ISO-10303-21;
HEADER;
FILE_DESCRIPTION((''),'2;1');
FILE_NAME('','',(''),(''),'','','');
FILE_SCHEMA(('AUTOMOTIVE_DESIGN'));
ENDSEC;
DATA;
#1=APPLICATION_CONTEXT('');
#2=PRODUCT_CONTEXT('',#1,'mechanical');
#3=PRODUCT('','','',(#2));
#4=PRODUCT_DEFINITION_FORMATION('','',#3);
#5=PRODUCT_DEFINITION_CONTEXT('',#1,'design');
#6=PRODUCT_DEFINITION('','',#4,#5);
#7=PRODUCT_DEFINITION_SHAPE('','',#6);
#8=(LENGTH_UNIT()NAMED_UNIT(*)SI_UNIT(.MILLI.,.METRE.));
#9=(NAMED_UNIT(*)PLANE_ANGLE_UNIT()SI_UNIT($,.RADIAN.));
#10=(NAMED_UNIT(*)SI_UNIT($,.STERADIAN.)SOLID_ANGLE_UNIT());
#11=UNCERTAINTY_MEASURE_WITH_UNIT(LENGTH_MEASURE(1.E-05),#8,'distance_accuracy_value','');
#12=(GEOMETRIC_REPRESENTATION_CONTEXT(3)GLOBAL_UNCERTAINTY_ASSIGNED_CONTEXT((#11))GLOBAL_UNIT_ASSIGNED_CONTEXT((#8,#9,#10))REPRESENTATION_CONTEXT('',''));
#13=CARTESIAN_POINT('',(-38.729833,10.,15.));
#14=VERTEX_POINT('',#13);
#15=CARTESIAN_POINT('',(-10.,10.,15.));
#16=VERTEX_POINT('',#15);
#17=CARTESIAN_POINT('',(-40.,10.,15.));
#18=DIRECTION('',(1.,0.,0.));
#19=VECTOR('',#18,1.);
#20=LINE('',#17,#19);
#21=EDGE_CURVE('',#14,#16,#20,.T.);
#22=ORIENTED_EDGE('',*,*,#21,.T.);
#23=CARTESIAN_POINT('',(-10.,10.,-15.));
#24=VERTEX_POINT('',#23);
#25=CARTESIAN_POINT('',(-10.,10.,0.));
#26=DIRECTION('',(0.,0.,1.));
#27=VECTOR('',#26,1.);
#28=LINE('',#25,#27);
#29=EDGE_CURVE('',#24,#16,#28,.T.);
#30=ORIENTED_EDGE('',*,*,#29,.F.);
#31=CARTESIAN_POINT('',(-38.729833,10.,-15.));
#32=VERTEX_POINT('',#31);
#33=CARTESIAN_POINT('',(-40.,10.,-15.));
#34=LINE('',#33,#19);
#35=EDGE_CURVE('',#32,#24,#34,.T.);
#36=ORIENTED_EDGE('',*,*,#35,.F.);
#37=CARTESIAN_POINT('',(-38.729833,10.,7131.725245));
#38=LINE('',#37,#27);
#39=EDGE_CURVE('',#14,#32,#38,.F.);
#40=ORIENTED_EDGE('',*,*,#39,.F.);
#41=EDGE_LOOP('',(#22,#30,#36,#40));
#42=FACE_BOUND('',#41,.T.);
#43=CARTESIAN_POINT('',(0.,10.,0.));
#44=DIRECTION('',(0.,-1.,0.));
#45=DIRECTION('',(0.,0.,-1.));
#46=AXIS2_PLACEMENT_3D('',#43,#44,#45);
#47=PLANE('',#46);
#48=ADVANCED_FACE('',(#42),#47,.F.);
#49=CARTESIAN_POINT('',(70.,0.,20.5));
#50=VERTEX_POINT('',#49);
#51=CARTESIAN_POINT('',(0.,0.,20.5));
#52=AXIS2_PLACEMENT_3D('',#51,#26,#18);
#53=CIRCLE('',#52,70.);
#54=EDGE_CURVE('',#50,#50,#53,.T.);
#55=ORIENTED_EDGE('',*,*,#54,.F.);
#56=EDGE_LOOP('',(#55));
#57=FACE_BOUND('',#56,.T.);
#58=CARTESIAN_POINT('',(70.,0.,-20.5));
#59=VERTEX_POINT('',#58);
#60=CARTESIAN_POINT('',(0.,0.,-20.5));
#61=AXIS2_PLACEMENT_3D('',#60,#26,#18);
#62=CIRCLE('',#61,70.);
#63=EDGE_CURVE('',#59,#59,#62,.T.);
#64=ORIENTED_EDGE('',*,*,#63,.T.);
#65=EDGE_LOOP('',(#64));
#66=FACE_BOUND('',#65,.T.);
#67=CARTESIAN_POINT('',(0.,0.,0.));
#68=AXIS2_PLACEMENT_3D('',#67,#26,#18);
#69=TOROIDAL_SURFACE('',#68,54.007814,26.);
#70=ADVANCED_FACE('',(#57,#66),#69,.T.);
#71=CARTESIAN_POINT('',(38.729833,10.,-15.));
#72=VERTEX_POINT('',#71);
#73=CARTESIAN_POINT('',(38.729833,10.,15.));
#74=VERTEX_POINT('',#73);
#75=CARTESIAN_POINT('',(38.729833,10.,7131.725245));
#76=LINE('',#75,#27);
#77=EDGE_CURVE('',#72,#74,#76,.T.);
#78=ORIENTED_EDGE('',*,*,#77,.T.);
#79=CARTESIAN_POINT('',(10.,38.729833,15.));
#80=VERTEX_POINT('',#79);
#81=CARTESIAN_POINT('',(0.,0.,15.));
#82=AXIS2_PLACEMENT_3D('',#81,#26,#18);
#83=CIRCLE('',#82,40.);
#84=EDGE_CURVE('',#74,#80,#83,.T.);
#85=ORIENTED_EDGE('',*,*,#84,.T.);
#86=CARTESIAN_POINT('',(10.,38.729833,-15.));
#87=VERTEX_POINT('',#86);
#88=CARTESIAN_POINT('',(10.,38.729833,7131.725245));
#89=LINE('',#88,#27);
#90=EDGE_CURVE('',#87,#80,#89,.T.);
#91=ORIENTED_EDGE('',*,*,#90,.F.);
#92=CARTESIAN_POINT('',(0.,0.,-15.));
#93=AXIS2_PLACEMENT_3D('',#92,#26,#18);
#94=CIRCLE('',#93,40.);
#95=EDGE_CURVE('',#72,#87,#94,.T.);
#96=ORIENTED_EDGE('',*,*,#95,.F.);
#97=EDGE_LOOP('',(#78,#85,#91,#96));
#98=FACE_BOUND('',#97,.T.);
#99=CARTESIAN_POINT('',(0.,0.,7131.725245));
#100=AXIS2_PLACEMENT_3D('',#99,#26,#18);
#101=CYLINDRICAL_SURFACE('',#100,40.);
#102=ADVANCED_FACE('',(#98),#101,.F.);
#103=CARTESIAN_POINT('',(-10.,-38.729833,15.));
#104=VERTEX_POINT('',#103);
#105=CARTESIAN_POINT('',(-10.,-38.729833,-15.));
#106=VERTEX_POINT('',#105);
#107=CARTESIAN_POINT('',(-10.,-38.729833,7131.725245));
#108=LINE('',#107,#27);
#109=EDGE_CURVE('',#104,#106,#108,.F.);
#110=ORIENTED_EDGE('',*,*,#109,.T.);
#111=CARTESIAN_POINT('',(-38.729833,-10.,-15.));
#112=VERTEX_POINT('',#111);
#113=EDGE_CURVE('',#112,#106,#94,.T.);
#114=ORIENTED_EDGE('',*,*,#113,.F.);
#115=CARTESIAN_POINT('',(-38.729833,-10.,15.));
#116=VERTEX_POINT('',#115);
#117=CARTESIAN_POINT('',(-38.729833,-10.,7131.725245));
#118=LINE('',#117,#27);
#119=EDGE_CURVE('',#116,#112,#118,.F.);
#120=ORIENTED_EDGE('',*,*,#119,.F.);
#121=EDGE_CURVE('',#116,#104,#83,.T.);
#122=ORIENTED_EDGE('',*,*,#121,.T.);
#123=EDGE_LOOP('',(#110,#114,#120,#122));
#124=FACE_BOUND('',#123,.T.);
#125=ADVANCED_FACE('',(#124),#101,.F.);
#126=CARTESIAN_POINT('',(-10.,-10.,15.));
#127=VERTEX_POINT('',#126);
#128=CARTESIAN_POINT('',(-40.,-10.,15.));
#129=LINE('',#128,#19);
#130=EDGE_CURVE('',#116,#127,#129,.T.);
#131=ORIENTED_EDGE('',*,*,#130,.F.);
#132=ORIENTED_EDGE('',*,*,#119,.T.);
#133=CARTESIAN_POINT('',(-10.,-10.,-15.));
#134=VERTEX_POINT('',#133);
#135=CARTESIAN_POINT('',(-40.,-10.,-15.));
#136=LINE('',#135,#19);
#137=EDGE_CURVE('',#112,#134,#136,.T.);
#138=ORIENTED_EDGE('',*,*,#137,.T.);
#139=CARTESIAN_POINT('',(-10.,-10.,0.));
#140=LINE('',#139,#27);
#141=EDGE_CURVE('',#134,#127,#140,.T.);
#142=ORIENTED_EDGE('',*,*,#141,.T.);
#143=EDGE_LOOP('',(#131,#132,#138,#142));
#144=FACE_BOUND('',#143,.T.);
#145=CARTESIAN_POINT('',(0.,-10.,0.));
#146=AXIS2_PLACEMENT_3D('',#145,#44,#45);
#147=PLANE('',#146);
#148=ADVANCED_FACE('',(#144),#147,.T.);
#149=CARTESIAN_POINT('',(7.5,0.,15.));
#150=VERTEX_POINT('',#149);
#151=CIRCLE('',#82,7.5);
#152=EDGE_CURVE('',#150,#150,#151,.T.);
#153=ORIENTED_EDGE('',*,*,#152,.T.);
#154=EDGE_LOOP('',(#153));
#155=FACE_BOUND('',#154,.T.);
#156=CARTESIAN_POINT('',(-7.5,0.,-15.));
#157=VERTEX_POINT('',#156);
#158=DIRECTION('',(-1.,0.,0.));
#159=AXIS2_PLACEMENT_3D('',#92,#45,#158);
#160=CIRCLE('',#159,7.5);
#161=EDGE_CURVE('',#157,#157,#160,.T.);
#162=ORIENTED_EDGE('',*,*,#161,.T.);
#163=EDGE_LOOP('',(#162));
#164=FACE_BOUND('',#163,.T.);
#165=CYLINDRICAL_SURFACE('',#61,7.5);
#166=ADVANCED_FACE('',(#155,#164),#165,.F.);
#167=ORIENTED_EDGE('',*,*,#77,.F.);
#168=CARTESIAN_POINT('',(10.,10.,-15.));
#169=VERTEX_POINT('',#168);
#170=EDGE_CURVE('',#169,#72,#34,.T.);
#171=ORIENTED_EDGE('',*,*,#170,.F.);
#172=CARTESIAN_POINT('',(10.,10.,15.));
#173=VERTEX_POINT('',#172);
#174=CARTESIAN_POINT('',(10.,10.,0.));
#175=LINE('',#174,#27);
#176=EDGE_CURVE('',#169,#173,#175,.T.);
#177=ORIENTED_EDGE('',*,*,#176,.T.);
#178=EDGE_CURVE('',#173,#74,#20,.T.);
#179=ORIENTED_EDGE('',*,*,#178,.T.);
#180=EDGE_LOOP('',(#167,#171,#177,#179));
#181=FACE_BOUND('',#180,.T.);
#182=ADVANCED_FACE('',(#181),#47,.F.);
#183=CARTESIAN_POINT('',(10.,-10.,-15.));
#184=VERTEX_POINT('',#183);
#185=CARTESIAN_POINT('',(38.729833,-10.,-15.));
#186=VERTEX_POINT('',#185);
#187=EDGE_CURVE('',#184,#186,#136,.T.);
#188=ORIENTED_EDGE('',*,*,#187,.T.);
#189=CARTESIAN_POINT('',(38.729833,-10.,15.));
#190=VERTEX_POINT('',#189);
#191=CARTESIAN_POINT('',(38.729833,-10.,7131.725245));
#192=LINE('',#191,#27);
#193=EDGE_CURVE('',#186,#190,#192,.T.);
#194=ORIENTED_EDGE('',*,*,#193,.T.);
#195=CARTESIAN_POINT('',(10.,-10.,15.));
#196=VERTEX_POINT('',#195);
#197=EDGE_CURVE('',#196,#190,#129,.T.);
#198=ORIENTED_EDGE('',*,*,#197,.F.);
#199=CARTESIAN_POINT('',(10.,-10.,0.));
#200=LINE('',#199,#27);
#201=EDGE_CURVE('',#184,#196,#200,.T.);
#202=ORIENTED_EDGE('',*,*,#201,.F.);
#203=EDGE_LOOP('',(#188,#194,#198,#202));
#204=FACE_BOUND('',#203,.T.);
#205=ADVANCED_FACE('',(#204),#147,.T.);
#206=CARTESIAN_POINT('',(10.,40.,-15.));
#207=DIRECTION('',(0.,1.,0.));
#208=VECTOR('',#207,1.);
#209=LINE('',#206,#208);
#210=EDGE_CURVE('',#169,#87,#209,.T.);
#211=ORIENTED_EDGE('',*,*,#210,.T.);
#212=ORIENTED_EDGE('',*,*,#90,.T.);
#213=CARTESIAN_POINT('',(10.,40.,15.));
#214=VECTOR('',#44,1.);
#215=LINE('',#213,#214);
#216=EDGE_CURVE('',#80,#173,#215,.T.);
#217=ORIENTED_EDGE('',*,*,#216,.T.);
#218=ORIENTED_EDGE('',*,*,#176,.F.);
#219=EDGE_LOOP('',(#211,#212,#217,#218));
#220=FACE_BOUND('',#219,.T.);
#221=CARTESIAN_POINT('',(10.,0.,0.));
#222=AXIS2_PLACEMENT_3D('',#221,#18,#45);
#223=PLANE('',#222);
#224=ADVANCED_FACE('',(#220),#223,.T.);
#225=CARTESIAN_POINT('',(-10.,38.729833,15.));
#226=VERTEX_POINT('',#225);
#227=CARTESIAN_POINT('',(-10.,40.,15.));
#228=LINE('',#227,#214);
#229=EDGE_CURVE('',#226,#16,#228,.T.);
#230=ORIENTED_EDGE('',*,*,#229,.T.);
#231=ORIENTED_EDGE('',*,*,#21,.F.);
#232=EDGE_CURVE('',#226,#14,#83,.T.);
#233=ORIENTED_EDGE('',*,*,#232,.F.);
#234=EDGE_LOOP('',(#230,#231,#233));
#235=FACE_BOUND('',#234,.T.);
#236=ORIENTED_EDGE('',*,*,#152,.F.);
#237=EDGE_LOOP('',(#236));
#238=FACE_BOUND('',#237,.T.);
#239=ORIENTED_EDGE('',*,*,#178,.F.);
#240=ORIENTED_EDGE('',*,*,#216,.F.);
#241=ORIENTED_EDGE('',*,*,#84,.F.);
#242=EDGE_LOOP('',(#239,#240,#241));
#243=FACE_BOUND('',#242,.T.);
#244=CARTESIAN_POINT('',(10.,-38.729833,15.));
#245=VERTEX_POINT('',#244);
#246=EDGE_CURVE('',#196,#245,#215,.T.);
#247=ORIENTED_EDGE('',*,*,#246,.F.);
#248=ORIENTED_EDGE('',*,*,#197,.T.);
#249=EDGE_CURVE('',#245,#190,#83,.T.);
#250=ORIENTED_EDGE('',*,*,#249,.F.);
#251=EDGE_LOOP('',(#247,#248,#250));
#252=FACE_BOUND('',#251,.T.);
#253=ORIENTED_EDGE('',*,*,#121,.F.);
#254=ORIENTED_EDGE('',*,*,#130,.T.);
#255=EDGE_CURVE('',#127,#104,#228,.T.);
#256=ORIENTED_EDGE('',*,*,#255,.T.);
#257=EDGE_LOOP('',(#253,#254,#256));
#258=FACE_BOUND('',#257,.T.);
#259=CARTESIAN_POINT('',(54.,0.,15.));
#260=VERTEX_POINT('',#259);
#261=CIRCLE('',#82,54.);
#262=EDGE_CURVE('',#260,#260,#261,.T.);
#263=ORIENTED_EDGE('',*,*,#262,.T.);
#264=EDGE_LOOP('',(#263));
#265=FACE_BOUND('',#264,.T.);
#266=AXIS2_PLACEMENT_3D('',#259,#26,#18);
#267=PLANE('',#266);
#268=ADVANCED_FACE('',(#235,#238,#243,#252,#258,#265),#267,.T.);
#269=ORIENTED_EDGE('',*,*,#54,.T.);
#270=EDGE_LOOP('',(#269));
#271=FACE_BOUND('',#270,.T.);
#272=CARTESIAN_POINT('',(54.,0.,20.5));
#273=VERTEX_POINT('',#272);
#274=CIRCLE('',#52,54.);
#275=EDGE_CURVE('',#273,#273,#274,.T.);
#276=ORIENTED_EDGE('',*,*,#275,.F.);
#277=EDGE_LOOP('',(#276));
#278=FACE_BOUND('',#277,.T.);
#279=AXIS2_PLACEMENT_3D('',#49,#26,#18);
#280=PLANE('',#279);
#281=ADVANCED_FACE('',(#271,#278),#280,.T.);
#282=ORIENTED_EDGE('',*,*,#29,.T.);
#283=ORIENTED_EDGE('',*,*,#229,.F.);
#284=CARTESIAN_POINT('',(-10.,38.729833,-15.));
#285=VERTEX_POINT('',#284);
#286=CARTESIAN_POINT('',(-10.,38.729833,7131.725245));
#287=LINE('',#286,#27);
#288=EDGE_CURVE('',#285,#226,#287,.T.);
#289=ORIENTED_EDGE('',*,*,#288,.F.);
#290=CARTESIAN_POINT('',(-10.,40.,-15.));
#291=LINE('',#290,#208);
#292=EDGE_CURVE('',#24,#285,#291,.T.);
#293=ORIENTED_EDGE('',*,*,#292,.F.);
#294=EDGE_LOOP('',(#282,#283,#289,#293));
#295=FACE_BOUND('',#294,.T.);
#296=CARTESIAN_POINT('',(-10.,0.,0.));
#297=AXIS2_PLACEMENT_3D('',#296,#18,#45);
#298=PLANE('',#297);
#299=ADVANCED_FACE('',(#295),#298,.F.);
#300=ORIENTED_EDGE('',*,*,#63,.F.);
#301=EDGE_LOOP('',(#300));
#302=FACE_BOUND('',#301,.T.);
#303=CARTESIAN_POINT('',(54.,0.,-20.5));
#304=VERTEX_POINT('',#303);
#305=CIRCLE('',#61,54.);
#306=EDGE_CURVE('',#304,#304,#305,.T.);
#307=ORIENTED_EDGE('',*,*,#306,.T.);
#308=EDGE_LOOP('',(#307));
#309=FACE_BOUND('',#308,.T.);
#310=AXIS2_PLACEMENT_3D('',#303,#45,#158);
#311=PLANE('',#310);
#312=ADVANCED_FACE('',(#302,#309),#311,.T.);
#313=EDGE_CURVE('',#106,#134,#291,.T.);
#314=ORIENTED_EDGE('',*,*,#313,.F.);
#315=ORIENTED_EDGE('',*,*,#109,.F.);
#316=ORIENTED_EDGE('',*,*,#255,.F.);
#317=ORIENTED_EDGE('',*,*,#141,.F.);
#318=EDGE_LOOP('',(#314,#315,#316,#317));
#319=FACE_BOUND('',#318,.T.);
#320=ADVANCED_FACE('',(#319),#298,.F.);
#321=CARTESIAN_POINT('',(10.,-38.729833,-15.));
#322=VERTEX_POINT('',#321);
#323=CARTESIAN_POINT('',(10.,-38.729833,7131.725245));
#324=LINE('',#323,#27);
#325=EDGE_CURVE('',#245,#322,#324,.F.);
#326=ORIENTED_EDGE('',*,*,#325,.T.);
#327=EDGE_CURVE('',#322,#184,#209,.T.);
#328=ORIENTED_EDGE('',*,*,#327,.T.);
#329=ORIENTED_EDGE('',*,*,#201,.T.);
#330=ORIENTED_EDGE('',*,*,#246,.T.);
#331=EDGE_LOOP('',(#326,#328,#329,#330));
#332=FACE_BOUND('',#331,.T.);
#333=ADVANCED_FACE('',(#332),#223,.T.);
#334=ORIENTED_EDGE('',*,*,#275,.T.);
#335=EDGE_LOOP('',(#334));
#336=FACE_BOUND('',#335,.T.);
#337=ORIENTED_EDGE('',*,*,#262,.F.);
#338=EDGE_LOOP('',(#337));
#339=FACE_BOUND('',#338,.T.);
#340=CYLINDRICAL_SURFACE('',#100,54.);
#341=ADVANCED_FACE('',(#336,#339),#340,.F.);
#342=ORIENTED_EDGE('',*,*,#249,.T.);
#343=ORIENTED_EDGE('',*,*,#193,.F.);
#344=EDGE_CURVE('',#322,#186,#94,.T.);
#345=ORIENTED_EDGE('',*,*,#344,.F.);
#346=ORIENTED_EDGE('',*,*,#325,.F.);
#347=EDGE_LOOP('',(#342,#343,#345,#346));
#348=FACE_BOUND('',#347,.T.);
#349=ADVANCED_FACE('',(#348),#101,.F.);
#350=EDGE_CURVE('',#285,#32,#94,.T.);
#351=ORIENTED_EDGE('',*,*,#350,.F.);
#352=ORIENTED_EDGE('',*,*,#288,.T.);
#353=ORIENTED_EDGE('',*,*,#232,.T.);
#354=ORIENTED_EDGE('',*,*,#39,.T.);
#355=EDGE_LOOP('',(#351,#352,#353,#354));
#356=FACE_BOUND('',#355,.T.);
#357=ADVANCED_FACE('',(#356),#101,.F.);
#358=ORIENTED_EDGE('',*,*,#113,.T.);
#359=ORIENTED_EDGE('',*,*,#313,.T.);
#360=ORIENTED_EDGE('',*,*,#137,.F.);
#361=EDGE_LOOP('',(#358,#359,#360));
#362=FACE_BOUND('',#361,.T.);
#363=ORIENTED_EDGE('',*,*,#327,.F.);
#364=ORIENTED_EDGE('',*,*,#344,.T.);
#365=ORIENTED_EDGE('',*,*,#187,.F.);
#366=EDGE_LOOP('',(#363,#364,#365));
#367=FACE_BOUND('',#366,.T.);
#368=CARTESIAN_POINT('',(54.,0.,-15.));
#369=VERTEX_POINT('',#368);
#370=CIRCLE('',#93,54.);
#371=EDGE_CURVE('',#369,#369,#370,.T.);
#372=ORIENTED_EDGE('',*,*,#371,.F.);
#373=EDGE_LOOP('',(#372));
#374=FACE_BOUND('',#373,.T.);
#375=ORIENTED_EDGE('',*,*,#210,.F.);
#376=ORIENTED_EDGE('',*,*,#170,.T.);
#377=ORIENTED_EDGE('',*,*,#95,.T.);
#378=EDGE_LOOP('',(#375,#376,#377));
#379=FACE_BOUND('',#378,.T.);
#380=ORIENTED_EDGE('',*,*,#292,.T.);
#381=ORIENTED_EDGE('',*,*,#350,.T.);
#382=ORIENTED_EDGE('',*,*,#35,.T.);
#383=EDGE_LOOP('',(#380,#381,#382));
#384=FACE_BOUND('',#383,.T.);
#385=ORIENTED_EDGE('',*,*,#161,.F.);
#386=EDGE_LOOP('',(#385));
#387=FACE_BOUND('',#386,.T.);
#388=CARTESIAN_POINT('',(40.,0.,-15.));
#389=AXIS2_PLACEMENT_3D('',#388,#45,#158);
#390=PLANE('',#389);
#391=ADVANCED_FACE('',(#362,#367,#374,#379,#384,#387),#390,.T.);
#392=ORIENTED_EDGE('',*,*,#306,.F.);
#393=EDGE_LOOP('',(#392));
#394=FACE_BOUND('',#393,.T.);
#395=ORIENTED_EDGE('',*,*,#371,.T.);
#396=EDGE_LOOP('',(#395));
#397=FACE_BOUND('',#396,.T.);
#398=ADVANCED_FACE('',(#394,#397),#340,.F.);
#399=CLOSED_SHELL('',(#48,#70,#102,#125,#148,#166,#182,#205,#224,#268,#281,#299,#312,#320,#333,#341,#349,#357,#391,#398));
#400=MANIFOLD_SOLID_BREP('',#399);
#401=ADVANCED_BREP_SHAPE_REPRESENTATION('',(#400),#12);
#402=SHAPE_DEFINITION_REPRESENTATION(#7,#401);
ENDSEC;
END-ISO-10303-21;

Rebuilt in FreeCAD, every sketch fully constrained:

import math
import FreeCAD as App
import Part
import Sketcher

doc = App.newDocument("Part")
body = doc.addObject("PartDesign::Body", "Body")

sketch1 = body.newObject("Sketcher::SketchObject", "Sketch")
sketch1.AttachmentSupport = (doc.getObject("XZ_Plane"), [""])
sketch1.MapMode = "FlatFace"
sketch1.addGeometry([
    Part.LineSegment(App.Vector(40, -15, 0), App.Vector(40, 15, 0)),
    Part.LineSegment(App.Vector(40, 15, 0), App.Vector(54, 15, 0)),
    Part.LineSegment(App.Vector(54, 15, 0), App.Vector(54, 20.5, 0)),
    Part.LineSegment(App.Vector(54, 20.5, 0), App.Vector(70, 20.5, 0)),
    Part.ArcOfCircle(Part.Circle(App.Vector(54.007814, 0, 0), App.Vector(0, 0, 1), 26), math.radians(-52.041971), math.radians(52.041971)),
    Part.LineSegment(App.Vector(70, -20.5, 0), App.Vector(54, -20.5, 0)),
    Part.LineSegment(App.Vector(54, -20.5, 0), App.Vector(54, -15, 0)),
    Part.LineSegment(App.Vector(54, -15, 0), App.Vector(40, -15, 0)),
], False)
sketch1.addConstraint([
    Sketcher.Constraint("Coincident", 0, 2, 1, 1),
    Sketcher.Constraint("Coincident", 1, 2, 2, 1),
    Sketcher.Constraint("Coincident", 2, 2, 3, 1),
    Sketcher.Constraint("Coincident", 3, 2, 4, 2),
    Sketcher.Constraint("Coincident", 4, 1, 5, 1),
    Sketcher.Constraint("Coincident", 5, 2, 6, 1),
    Sketcher.Constraint("Coincident", 6, 2, 7, 1),
    Sketcher.Constraint("Coincident", 7, 2, 0, 1),
    Sketcher.Constraint("Vertical", 0),
    Sketcher.Constraint("Horizontal", 1),
    Sketcher.Constraint("Vertical", 2),
    Sketcher.Constraint("Horizontal", 3),
    Sketcher.Constraint("Horizontal", 5),
    Sketcher.Constraint("Vertical", 6),
    Sketcher.Constraint("Horizontal", 7),
    Sketcher.Constraint("Symmetric", 3, 2, 4, 1, -1),
    Sketcher.Constraint("Symmetric", 1, 2, 6, 2, -1),
    Sketcher.Constraint("Radius", 4, 26.0),
    Sketcher.Constraint("DistanceX", 1, 1, 1, 2, 14.0),
    Sketcher.Constraint("DistanceX", 3, 1, 3, 2, 16.0),
    Sketcher.Constraint("DistanceY", 0, 1, 0, 2, 30.0),
    Sketcher.Constraint("DistanceY", 2, 1, 2, 2, 5.5),
    Sketcher.Constraint("DistanceX", -1, 1, 0, 2, 40.0),
])
revolution = body.newObject("PartDesign::Revolution", "Revolution")
revolution.Profile = sketch1
revolution.ReferenceAxis = (sketch1, ["V_Axis"])
revolution.Angle = 360

sketch2 = body.newObject("Sketcher::SketchObject", "Sketch001")
sketch2.AttachmentSupport = (doc.getObject("XZ_Plane"), [""])
sketch2.MapMode = "FlatFace"
sketch2.addGeometry([
    Part.LineSegment(App.Vector(-40, -15, 0), App.Vector(-40, 15, 0)),
    Part.LineSegment(App.Vector(-40, 15, 0), App.Vector(40, 15, 0)),
    Part.LineSegment(App.Vector(40, 15, 0), App.Vector(40, -15, 0)),
    Part.LineSegment(App.Vector(40, -15, 0), App.Vector(-40, -15, 0)),
], False)
sketch2.addConstraint([
    Sketcher.Constraint("Coincident", 0, 2, 1, 1),
    Sketcher.Constraint("Coincident", 1, 2, 2, 1),
    Sketcher.Constraint("Coincident", 2, 2, 3, 1),
    Sketcher.Constraint("Coincident", 3, 2, 0, 1),
    Sketcher.Constraint("Vertical", 0),
    Sketcher.Constraint("Horizontal", 1),
    Sketcher.Constraint("Vertical", 2),
    Sketcher.Constraint("Horizontal", 3),
    Sketcher.Constraint("Symmetric", 0, 2, 2, 2, -1, 1),
    Sketcher.Constraint("DistanceX", 1, 1, 1, 2, 80.0),
    Sketcher.Constraint("DistanceY", 0, 1, 0, 2, 30.0),
])
pad1 = body.newObject("PartDesign::Pad", "Pad")
pad1.Profile = sketch2
pad1.Length = 20
pad1.Midplane = True

sketch3 = body.newObject("Sketcher::SketchObject", "Sketch002")
sketch3.AttachmentSupport = (doc.getObject("YZ_Plane"), [""])
sketch3.MapMode = "FlatFace"
sketch3.addGeometry([
    Part.LineSegment(App.Vector(40, 15, 0), App.Vector(-40, 15, 0)),
    Part.LineSegment(App.Vector(-40, 15, 0), App.Vector(-40, -15, 0)),
    Part.LineSegment(App.Vector(-40, -15, 0), App.Vector(40, -15, 0)),
    Part.LineSegment(App.Vector(40, -15, 0), App.Vector(40, 15, 0)),
], False)
sketch3.addConstraint([
    Sketcher.Constraint("Coincident", 0, 2, 1, 1),
    Sketcher.Constraint("Coincident", 1, 2, 2, 1),
    Sketcher.Constraint("Coincident", 2, 2, 3, 1),
    Sketcher.Constraint("Coincident", 3, 2, 0, 1),
    Sketcher.Constraint("Horizontal", 0),
    Sketcher.Constraint("Vertical", 1),
    Sketcher.Constraint("Horizontal", 2),
    Sketcher.Constraint("Vertical", 3),
    Sketcher.Constraint("Symmetric", 0, 2, 2, 2, -1, 1),
    Sketcher.Constraint("DistanceX", 0, 2, 0, 1, 80.0),
    Sketcher.Constraint("DistanceY", 1, 2, 1, 1, 30.0),
])
pad2 = body.newObject("PartDesign::Pad", "Pad001")
pad2.Profile = sketch3
pad2.Length = 20
pad2.Midplane = True

sketch4 = body.newObject("Sketcher::SketchObject", "Sketch003")
sketch4.AttachmentSupport = (doc.getObject("XY_Plane"), [""])
sketch4.MapMode = "FlatFace"
sketch4.addGeometry(Part.Circle(App.Vector(0, 0, 0), App.Vector(0, 0, 1), 7.5), False)
sketch4.addConstraint([
    Sketcher.Constraint("Coincident", 0, 3, -1, 1),
    Sketcher.Constraint("Diameter", 0, 15.0),
])
pocket1 = body.newObject("PartDesign::Pocket", "Pocket")
pocket1.Profile = sketch4
pocket1.Type = "ThroughAll"
pocket1.Midplane = True

doc.recompute()
